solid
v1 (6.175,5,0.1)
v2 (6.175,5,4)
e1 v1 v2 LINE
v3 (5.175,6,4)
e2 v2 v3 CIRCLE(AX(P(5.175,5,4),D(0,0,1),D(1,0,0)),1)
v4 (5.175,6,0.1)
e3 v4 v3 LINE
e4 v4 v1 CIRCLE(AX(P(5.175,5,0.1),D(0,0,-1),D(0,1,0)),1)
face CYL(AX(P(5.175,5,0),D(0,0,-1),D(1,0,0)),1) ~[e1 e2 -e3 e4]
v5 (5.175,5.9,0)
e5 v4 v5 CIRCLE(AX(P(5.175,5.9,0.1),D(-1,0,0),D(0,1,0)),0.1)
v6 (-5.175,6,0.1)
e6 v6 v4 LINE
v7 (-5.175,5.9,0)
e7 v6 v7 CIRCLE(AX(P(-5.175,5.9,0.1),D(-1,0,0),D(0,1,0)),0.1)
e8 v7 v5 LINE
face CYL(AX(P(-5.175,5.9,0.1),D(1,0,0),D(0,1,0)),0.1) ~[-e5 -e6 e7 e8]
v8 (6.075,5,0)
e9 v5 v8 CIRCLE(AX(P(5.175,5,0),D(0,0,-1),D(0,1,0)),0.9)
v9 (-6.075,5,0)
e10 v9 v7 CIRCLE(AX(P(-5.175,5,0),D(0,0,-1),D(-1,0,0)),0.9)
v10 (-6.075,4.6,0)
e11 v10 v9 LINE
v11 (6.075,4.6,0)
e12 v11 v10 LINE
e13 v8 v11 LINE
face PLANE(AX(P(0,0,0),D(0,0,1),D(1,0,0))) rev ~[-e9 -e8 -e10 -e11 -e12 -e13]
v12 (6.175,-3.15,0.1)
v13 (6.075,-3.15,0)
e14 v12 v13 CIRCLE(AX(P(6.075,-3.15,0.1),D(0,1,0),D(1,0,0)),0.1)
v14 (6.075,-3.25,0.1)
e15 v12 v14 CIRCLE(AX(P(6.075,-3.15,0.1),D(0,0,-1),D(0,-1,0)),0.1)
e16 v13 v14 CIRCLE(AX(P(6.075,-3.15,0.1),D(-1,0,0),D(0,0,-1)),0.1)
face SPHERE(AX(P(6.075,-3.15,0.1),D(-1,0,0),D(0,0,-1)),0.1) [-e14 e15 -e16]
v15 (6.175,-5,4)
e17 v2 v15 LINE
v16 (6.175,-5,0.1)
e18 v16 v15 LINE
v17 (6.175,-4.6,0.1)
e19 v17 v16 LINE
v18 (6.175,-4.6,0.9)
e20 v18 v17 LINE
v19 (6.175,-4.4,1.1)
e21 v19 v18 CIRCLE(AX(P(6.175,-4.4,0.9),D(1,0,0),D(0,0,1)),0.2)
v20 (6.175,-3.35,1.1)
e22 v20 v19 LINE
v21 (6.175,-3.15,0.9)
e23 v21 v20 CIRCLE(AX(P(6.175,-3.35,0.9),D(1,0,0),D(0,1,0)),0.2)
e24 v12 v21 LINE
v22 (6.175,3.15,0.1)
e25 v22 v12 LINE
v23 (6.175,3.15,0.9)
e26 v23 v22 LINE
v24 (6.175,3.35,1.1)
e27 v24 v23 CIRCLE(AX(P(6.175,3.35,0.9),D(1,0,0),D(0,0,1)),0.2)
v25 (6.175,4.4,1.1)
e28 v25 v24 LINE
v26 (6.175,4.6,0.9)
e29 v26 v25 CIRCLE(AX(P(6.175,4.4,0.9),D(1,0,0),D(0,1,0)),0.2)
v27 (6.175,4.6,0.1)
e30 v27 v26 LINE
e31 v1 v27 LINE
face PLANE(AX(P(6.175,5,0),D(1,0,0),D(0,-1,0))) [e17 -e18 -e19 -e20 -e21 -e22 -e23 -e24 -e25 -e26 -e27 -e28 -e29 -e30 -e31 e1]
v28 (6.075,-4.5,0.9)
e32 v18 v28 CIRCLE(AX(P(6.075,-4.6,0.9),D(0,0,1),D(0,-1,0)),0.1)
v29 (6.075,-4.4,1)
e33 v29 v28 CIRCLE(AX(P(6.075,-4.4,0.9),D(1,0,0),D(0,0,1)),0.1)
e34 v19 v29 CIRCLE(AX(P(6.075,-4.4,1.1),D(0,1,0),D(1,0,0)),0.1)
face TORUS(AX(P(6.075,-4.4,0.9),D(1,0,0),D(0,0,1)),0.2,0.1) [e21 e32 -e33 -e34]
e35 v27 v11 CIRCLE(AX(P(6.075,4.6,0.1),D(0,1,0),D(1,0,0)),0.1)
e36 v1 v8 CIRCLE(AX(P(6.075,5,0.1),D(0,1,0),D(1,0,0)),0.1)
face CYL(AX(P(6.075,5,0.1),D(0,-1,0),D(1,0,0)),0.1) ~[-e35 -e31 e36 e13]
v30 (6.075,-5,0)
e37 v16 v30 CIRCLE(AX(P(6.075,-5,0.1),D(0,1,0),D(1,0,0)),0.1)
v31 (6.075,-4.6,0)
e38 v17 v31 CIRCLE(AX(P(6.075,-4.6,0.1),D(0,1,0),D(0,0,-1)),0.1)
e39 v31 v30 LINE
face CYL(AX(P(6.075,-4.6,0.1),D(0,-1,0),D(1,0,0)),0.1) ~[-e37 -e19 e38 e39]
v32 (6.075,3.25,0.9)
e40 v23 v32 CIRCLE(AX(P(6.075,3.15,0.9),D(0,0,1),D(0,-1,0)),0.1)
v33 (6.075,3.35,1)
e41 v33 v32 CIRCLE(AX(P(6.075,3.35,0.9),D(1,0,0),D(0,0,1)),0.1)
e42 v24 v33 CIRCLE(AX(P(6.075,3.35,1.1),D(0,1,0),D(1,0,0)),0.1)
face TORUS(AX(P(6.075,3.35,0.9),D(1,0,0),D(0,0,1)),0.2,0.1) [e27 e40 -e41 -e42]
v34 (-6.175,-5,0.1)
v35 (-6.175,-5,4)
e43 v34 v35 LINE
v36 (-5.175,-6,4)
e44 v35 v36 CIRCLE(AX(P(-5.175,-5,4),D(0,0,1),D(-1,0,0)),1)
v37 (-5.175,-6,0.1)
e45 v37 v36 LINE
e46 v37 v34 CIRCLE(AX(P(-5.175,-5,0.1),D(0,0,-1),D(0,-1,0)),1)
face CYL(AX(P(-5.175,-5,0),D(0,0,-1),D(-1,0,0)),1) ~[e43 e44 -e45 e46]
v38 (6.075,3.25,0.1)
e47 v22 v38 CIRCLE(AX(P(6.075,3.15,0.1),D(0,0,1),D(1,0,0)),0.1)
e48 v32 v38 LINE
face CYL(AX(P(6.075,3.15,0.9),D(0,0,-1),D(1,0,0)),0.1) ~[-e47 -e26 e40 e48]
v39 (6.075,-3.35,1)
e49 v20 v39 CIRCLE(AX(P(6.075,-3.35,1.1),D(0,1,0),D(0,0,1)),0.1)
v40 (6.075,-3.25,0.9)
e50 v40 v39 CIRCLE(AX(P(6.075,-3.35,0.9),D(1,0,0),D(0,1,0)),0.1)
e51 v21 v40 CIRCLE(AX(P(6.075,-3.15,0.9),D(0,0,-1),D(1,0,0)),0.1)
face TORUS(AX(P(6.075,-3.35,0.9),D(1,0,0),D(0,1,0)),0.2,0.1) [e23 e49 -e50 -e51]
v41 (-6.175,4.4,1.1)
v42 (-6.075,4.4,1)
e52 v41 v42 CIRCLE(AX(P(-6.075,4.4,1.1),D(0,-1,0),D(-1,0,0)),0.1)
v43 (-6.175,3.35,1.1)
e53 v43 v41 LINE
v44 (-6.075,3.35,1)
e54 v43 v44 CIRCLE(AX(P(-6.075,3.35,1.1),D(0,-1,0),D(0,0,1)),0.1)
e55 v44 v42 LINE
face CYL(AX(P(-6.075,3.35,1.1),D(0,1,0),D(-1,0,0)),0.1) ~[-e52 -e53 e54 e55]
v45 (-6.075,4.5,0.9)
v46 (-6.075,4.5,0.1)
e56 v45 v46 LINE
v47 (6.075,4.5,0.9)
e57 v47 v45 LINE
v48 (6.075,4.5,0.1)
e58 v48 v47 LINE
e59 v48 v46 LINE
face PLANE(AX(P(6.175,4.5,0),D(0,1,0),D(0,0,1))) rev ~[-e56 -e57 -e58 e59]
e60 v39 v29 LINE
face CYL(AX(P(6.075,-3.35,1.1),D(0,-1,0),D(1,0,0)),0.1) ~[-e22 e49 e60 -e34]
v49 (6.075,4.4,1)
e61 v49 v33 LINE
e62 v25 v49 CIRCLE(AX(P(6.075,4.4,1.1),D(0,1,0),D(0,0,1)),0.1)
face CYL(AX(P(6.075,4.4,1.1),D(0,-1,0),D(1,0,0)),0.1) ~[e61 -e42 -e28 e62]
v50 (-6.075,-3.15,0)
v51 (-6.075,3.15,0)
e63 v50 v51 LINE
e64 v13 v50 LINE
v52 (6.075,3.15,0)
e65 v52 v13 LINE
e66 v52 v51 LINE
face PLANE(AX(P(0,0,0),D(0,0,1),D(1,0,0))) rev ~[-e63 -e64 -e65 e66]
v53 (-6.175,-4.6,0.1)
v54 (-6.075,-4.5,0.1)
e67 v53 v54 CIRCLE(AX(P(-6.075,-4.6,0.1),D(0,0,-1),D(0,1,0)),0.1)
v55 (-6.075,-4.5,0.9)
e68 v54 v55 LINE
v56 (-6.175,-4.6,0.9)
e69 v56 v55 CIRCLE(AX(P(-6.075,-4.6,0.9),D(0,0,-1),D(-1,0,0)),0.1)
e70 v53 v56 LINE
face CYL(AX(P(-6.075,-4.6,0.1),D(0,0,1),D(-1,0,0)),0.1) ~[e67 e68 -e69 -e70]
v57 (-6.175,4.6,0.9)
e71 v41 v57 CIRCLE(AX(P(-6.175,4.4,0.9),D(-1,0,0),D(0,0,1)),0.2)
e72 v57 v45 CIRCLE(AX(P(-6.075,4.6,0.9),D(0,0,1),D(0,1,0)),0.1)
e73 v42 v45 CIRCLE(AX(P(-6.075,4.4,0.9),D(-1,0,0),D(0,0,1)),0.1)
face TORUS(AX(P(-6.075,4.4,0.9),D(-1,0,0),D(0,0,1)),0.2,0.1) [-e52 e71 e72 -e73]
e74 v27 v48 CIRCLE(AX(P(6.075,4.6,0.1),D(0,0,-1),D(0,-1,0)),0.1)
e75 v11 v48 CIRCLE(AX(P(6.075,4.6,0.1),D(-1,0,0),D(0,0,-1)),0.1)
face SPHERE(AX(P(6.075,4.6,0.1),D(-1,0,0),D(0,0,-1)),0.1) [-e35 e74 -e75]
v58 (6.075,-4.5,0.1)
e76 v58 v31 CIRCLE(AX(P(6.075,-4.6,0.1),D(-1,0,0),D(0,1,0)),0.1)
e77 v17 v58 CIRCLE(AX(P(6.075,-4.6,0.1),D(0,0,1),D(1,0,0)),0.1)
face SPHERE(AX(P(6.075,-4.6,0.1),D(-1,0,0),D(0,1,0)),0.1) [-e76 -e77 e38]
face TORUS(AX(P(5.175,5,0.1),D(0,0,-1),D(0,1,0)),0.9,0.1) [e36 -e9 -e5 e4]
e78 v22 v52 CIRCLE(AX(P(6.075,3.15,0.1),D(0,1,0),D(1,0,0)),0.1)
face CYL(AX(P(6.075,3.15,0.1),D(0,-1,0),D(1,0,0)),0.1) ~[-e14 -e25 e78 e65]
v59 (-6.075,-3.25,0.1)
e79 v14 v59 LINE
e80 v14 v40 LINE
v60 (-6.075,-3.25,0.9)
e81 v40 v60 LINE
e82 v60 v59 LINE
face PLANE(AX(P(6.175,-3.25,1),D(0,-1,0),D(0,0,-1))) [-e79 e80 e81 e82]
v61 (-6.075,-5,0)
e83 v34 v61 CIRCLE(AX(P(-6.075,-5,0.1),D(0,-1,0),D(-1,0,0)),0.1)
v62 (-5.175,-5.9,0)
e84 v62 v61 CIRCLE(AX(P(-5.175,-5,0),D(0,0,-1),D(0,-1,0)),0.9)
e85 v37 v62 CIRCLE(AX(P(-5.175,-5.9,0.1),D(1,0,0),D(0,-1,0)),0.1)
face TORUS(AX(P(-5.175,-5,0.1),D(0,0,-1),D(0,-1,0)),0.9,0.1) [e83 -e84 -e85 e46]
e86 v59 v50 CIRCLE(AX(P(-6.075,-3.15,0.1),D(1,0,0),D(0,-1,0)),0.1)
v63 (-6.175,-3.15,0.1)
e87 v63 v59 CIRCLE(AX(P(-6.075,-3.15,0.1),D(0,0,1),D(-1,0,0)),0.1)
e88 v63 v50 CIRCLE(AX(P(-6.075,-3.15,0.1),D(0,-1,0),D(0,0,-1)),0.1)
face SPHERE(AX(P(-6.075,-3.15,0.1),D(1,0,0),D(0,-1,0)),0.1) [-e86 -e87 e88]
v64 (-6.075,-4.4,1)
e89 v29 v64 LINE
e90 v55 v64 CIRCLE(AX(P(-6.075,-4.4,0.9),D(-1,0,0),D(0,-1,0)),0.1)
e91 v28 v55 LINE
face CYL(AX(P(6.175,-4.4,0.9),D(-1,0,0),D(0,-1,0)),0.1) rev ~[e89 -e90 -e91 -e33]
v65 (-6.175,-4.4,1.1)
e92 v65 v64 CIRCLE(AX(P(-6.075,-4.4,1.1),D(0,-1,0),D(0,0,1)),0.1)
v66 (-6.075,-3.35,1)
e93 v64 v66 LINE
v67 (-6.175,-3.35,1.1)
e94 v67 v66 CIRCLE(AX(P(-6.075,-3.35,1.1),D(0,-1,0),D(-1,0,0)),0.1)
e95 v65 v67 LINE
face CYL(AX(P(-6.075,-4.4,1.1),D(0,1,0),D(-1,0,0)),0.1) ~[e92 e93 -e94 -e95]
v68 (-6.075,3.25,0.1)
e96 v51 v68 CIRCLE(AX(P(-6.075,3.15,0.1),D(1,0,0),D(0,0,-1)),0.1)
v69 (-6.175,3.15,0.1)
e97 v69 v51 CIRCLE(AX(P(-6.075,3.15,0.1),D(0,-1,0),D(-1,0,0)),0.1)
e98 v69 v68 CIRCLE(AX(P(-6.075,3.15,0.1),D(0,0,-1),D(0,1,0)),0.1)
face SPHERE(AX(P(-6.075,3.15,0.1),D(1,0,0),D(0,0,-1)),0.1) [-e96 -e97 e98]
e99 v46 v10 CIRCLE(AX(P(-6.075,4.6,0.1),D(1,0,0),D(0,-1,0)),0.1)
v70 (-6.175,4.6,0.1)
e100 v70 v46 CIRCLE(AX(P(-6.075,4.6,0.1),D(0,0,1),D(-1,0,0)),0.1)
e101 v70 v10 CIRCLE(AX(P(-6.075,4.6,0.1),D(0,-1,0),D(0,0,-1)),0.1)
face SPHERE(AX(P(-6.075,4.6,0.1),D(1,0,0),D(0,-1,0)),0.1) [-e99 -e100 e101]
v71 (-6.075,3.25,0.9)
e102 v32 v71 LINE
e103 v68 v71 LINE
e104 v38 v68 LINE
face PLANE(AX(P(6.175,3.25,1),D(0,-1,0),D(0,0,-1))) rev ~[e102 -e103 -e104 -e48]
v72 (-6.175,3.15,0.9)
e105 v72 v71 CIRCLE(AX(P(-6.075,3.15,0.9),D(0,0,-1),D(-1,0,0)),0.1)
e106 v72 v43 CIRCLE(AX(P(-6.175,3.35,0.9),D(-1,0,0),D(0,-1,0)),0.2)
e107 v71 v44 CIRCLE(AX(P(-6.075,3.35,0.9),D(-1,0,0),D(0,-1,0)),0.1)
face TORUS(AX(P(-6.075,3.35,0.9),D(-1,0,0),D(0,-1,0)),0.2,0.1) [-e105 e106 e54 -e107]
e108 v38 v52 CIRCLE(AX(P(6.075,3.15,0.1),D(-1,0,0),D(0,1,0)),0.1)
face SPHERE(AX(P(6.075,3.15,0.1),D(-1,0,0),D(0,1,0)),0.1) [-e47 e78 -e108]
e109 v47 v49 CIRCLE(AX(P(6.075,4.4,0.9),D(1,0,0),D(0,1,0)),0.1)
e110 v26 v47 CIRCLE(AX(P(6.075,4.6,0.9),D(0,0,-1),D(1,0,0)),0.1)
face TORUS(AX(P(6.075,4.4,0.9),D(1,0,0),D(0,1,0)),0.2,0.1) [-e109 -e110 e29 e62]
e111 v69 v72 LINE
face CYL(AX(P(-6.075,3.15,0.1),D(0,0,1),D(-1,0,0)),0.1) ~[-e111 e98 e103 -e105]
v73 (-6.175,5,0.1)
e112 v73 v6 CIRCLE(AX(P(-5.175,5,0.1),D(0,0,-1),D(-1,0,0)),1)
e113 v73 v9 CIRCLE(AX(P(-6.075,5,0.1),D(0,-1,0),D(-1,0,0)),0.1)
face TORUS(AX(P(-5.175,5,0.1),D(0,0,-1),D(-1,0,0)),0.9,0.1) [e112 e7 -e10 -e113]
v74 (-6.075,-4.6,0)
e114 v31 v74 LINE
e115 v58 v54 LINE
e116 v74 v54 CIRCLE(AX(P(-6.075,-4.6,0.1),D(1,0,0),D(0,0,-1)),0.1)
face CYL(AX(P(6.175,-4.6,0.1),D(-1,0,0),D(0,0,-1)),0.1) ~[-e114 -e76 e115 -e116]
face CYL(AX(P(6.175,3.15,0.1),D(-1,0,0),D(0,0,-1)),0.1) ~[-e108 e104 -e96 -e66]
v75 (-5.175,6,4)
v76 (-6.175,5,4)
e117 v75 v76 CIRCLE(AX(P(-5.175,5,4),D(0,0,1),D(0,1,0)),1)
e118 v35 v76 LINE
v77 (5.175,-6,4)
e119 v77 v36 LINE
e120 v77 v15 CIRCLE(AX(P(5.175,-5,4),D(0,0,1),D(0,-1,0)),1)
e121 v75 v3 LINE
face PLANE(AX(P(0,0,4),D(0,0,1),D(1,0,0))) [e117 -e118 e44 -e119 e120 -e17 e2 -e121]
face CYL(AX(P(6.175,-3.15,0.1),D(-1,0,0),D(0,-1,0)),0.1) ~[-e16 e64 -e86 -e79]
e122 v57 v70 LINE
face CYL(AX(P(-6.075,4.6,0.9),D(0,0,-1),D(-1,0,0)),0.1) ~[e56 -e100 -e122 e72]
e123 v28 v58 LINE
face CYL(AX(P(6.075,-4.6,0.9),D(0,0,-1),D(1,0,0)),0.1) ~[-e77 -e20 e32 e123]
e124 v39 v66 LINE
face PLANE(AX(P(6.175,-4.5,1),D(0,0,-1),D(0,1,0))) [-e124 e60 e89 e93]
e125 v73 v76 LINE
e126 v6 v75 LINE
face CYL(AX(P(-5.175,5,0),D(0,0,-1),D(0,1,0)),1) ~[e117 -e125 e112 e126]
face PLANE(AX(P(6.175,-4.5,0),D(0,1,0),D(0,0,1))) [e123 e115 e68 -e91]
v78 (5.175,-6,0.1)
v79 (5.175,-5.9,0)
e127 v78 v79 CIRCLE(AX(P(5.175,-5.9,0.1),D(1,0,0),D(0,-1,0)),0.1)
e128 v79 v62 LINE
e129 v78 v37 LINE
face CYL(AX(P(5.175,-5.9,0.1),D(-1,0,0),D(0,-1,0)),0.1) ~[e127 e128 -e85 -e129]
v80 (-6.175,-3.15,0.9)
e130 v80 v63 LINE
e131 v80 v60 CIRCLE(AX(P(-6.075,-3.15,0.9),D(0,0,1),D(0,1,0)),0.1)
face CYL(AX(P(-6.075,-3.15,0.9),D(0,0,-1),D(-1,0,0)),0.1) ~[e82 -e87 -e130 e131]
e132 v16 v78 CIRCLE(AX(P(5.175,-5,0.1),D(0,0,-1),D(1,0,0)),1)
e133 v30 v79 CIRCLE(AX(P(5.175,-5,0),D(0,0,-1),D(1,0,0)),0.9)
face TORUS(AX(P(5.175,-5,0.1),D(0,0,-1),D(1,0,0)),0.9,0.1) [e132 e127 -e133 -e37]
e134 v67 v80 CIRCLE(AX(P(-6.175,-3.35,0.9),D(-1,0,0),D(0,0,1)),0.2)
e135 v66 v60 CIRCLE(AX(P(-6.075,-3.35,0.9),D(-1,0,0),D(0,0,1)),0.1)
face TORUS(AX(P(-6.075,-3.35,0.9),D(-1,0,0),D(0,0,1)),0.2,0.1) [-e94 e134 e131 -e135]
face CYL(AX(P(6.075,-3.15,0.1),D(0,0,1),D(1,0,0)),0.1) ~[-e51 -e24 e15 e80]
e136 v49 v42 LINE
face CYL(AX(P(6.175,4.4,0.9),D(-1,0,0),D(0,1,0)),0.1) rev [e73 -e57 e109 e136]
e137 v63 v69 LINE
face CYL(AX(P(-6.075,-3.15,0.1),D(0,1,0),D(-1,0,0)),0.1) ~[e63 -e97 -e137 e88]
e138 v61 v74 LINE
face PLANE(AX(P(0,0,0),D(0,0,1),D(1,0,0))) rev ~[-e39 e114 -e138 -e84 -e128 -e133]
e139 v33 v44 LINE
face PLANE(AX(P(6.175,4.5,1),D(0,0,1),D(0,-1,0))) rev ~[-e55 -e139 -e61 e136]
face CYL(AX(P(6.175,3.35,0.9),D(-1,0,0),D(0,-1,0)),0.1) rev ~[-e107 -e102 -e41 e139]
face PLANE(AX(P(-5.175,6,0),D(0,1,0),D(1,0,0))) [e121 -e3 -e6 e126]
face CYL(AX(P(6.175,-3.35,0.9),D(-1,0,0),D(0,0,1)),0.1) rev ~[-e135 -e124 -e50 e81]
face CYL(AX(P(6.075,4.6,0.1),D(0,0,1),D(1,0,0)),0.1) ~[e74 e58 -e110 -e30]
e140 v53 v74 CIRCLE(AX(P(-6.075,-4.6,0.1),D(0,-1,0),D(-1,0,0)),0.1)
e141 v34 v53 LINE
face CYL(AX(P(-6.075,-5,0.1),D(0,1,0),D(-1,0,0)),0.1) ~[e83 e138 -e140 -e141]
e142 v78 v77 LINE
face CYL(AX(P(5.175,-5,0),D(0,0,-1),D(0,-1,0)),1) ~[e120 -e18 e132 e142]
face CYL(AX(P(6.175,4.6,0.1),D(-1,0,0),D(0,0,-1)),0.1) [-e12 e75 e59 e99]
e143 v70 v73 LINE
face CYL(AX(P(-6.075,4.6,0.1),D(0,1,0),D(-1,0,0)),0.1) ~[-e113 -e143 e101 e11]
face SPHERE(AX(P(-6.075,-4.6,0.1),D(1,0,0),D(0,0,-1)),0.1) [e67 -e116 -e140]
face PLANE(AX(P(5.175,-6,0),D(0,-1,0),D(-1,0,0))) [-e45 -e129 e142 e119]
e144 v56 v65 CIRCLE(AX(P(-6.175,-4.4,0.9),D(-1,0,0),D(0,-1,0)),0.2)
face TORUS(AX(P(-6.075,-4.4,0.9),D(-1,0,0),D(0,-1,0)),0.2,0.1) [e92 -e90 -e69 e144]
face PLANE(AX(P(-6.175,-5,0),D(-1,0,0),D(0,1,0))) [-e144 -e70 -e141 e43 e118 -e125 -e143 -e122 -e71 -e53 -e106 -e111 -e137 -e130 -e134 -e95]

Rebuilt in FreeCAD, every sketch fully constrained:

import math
import FreeCAD as App
import Part
import Sketcher
from FreeCAD import Vector
Q = App.Units.Quantity


def edges_at(feature, points):
    """Names of the edges that pass closest to the given points."""
    edges = feature.Shape.Edges
    near = lambda p: min(range(len(edges)), key=lambda i: edges[i].distToShape(Part.Vertex(*p))[0])
    return sorted({f"Edge{near(p) + 1}" for p in points})

doc = App.newDocument("Part")
params = doc.addObject("Spreadsheet::Sheet", "Params")
for row, (alias, value) in enumerate([
    ("sketch1_radius", "1 mm"),
    ("sketch1_height", "10 mm"),
    ("sketch1_width", "10.35 mm"),
    ("pad1_length", "4 mm"),
    ("sketch2_height", "1 mm"),
    ("sketch2_width", "1.25 mm"),
    ("fillet_radius", "0.1 mm"),
    ("fillet2_radius", "0.1 mm"),
], start=1):
    params.set(f"A{row}", alias)
    params.set(f"B{row}", "=" + value)
    params.setAlias(f"B{row}", alias)

body = doc.addObject("PartDesign::Body", "Body")

# Sketch on XY plane
sketch1 = body.newObject("Sketcher::SketchObject", "Sketch")
sketch1.AttachmentSupport = (doc.getObject("XY_Plane"), [""])
sketch1.MapMode = "FlatFace"
sketch1.addGeometry([
    Part.LineSegment(Vector(5.2, 6, 0), Vector(-5.2, 6, 0)),  # 0
    Part.ArcOfCircle(Part.Circle(Vector(-5.2, 5, 0), Vector(0, 0, 1), 1), math.radians(90), math.radians(180)),  # 1
    Part.LineSegment(Vector(-6.2, 5, 0), Vector(-6.2, -5, 0)),  # 2
    Part.ArcOfCircle(Part.Circle(Vector(-5.2, -5, 0), Vector(0, 0, 1), 1), math.radians(180), math.radians(270)),  # 3
    Part.LineSegment(Vector(-5.2, -6, 0), Vector(5.2, -6, 0)),  # 4
    Part.ArcOfCircle(Part.Circle(Vector(5.2, -5, 0), Vector(0, 0, 1), 1), math.radians(-90), math.radians(0)),  # 5
    Part.LineSegment(Vector(6.2, -5, 0), Vector(6.2, 5, 0)),  # 6
    Part.ArcOfCircle(Part.Circle(Vector(5.2, 5, 0), Vector(0, 0, 1), 1), math.radians(0), math.radians(90)),  # 7
], False)
sketch1.addConstraint([
    Sketcher.Constraint("Tangent", 0, 2, 1, 1),
    Sketcher.Constraint("Tangent", 1, 2, 2, 1),
    Sketcher.Constraint("Tangent", 2, 2, 3, 1),
    Sketcher.Constraint("Tangent", 3, 2, 4, 1),
    Sketcher.Constraint("Tangent", 4, 2, 5, 1),
    Sketcher.Constraint("Tangent", 5, 2, 6, 1),
    Sketcher.Constraint("Tangent", 6, 2, 7, 1),
    Sketcher.Constraint("Tangent", 7, 2, 0, 1),
    Sketcher.Constraint("Horizontal", 0),
    Sketcher.Constraint("Vertical", 2),
    Sketcher.Constraint("Horizontal", 4),
    Sketcher.Constraint("Vertical", 6),
    Sketcher.Constraint("Equal", 1, 3),
    Sketcher.Constraint("Equal", 3, 5),
    Sketcher.Constraint("Equal", 5, 7),
    Sketcher.Constraint("Symmetric", 1, 3, 5, 3, -1, 1),
    Sketcher.Constraint("Radius", 1, Q("1 mm")),
    Sketcher.Constraint("DistanceY", 2, 2, 2, 1, Q("10 mm")),
    Sketcher.Constraint("DistanceX", 0, 2, 0, 1, Q("10.35 mm")),
])
sketch1.setExpression("Constraints[16]", "Params.sketch1_radius")
sketch1.setExpression("Constraints[17]", "Params.sketch1_height")
sketch1.setExpression("Constraints[18]", "Params.sketch1_width")
pad1 = body.newObject("PartDesign::Pad", "Pad")
pad1.Profile = sketch1
pad1.setExpression("Length", "Params.pad1_length")

# Sketch on YZ plane
sketch2 = body.newObject("Sketcher::SketchObject", "Sketch001")
sketch2.AttachmentSupport = (doc.getObject("YZ_Plane"), [""])
sketch2.MapMode = "FlatFace"
sketch2.AttachmentOffset = App.Placement(Vector(0, 0, 6.175), App.Rotation())
sketch2.addGeometry([
    Part.LineSegment(Vector(-4.5, 0, 0), Vector(-3.2, 0, 0)),  # 0
    Part.LineSegment(Vector(-3.2, 0, 0), Vector(-3.2, 1, 0)),  # 1
    Part.LineSegment(Vector(-3.2, 1, 0), Vector(-4.5, 1, 0)),  # 2
    Part.LineSegment(Vector(-4.5, 1, 0), Vector(-4.5, 0, 0)),  # 3
    Part.LineSegment(Vector(3.2, 0, 0), Vector(4.5, 0, 0)),  # 4
    Part.LineSegment(Vector(4.5, 0, 0), Vector(4.5, 1, 0)),  # 5
    Part.LineSegment(Vector(4.5, 1, 0), Vector(3.2, 1, 0)),  # 6
    Part.LineSegment(Vector(3.2, 1, 0), Vector(3.2, 0, 0)),  # 7
], False)
sketch2.addConstraint([
    Sketcher.Constraint("Coincident", 0, 2, 1, 1),
    Sketcher.Constraint("Coincident", 1, 2, 2, 1),
    Sketcher.Constraint("Coincident", 2, 2, 3, 1),
    Sketcher.Constraint("Coincident", 3, 2, 0, 1),
    Sketcher.Constraint("Coincident", 4, 2, 5, 1),
    Sketcher.Constraint("Coincident", 5, 2, 6, 1),
    Sketcher.Constraint("Coincident", 6, 2, 7, 1),
    Sketcher.Constraint("Coincident", 7, 2, 4, 1),
    Sketcher.Constraint("Horizontal", 0),
    Sketcher.Constraint("Vertical", 1),
    Sketcher.Constraint("Horizontal", 2),
    Sketcher.Constraint("Vertical", 3),
    Sketcher.Constraint("Horizontal", 4),
    Sketcher.Constraint("Vertical", 5),
    Sketcher.Constraint("Horizontal", 6),
    Sketcher.Constraint("Vertical", 7),
    Sketcher.Constraint("Symmetric", 3, 2, 4, 2, -1, 1),
    Sketcher.Constraint("Symmetric", 1, 2, 6, 2, -2),
    Sketcher.Constraint("PointOnObject", 0, 2, -1),
    Sketcher.Constraint("DistanceY", 1, 1, 1, 2, Q("1 mm")),
    Sketcher.Constraint("DistanceX", 0, 1, 0, 2, Q("1.25 mm")),
    Sketcher.Constraint("DistanceX", 3, 2, 4, 2, Q("9 mm")),
])
sketch2.setExpression("Constraints[19]", "Params.sketch2_height")
sketch2.setExpression("Constraints[20]", "Params.sketch2_width")
pocket1 = body.newObject("PartDesign::Pocket", "Pocket")
pocket1.Profile = sketch2
pocket1.Type = "ThroughAll"
doc.recompute()

fillet = body.newObject("PartDesign::Fillet", "Fillet")
fillet.Base = (pocket1, edges_at(pocket1, [
    (0, -4.5, 0),
    (0, -4.5, 1),
    (0, -3.25, 1),
    (0, -3.25, 0),
    (0, 3.25, 1),
    (0, 4.5, 1),
    (0, 4.5, 0),
    (0, 3.25, 0),
]))
fillet.setExpression("Radius", "Params.fillet_radius")
doc.recompute()

fillet2 = body.newObject("PartDesign::Fillet", "Fillet001")
fillet2.Base = (fillet, edges_at(fillet, [
    (6.175, 0, 0),
    (6.175, -3.221, 0.029),
    (6.175, -3.25, 0.5),
    (6.175, -3.279, 0.971),
    (6.175, -3.875, 1),
    (6.175, -4.471, 0.971),
    (6.175, -4.5, 0.5),
    (6.175, -4.529, 0.029),
    (6.175, -4.8, 0),
    (5.882, -5.707, 0),
    (0, -6, 0),
    (-5.882, -5.707, 0),
    (-6.175, -4.8, 0),
    (-6.175, -4.529, 0.029),
    (-6.175, -4.5, 0.5),
    (-6.175, -4.471, 0.971),
    (-6.175, -3.875, 1),
    (-6.175, -3.279, 0.971),
    (-6.175, -3.25, 0.5),
    (-6.175, -3.221, 0.029),
    (-6.175, 0, 0),
    (-6.175, 3.221, 0.029),
    (-6.175, 3.25, 0.5),
    (-6.175, 3.279, 0.971),
    (-6.175, 3.875, 1),
    (-6.175, 4.471, 0.971),
    (-6.175, 4.5, 0.5),
    (-6.175, 4.529, 0.029),
    (-6.175, 4.8, 0),
    (-5.882, 5.707, 0),
    (0, 6, 0),
    (5.882, 5.707, 0),
    (6.175, 4.8, 0),
    (6.175, 4.529, 0.029),
    (6.175, 4.5, 0.5),
    (6.175, 4.471, 0.971),
    (6.175, 3.875, 1),
    (6.175, 3.279, 0.971),
    (6.175, 3.25, 0.5),
    (6.175, 3.221, 0.029),
]))
fillet2.setExpression("Radius", "Params.fillet2_radius")

doc.recompute()
